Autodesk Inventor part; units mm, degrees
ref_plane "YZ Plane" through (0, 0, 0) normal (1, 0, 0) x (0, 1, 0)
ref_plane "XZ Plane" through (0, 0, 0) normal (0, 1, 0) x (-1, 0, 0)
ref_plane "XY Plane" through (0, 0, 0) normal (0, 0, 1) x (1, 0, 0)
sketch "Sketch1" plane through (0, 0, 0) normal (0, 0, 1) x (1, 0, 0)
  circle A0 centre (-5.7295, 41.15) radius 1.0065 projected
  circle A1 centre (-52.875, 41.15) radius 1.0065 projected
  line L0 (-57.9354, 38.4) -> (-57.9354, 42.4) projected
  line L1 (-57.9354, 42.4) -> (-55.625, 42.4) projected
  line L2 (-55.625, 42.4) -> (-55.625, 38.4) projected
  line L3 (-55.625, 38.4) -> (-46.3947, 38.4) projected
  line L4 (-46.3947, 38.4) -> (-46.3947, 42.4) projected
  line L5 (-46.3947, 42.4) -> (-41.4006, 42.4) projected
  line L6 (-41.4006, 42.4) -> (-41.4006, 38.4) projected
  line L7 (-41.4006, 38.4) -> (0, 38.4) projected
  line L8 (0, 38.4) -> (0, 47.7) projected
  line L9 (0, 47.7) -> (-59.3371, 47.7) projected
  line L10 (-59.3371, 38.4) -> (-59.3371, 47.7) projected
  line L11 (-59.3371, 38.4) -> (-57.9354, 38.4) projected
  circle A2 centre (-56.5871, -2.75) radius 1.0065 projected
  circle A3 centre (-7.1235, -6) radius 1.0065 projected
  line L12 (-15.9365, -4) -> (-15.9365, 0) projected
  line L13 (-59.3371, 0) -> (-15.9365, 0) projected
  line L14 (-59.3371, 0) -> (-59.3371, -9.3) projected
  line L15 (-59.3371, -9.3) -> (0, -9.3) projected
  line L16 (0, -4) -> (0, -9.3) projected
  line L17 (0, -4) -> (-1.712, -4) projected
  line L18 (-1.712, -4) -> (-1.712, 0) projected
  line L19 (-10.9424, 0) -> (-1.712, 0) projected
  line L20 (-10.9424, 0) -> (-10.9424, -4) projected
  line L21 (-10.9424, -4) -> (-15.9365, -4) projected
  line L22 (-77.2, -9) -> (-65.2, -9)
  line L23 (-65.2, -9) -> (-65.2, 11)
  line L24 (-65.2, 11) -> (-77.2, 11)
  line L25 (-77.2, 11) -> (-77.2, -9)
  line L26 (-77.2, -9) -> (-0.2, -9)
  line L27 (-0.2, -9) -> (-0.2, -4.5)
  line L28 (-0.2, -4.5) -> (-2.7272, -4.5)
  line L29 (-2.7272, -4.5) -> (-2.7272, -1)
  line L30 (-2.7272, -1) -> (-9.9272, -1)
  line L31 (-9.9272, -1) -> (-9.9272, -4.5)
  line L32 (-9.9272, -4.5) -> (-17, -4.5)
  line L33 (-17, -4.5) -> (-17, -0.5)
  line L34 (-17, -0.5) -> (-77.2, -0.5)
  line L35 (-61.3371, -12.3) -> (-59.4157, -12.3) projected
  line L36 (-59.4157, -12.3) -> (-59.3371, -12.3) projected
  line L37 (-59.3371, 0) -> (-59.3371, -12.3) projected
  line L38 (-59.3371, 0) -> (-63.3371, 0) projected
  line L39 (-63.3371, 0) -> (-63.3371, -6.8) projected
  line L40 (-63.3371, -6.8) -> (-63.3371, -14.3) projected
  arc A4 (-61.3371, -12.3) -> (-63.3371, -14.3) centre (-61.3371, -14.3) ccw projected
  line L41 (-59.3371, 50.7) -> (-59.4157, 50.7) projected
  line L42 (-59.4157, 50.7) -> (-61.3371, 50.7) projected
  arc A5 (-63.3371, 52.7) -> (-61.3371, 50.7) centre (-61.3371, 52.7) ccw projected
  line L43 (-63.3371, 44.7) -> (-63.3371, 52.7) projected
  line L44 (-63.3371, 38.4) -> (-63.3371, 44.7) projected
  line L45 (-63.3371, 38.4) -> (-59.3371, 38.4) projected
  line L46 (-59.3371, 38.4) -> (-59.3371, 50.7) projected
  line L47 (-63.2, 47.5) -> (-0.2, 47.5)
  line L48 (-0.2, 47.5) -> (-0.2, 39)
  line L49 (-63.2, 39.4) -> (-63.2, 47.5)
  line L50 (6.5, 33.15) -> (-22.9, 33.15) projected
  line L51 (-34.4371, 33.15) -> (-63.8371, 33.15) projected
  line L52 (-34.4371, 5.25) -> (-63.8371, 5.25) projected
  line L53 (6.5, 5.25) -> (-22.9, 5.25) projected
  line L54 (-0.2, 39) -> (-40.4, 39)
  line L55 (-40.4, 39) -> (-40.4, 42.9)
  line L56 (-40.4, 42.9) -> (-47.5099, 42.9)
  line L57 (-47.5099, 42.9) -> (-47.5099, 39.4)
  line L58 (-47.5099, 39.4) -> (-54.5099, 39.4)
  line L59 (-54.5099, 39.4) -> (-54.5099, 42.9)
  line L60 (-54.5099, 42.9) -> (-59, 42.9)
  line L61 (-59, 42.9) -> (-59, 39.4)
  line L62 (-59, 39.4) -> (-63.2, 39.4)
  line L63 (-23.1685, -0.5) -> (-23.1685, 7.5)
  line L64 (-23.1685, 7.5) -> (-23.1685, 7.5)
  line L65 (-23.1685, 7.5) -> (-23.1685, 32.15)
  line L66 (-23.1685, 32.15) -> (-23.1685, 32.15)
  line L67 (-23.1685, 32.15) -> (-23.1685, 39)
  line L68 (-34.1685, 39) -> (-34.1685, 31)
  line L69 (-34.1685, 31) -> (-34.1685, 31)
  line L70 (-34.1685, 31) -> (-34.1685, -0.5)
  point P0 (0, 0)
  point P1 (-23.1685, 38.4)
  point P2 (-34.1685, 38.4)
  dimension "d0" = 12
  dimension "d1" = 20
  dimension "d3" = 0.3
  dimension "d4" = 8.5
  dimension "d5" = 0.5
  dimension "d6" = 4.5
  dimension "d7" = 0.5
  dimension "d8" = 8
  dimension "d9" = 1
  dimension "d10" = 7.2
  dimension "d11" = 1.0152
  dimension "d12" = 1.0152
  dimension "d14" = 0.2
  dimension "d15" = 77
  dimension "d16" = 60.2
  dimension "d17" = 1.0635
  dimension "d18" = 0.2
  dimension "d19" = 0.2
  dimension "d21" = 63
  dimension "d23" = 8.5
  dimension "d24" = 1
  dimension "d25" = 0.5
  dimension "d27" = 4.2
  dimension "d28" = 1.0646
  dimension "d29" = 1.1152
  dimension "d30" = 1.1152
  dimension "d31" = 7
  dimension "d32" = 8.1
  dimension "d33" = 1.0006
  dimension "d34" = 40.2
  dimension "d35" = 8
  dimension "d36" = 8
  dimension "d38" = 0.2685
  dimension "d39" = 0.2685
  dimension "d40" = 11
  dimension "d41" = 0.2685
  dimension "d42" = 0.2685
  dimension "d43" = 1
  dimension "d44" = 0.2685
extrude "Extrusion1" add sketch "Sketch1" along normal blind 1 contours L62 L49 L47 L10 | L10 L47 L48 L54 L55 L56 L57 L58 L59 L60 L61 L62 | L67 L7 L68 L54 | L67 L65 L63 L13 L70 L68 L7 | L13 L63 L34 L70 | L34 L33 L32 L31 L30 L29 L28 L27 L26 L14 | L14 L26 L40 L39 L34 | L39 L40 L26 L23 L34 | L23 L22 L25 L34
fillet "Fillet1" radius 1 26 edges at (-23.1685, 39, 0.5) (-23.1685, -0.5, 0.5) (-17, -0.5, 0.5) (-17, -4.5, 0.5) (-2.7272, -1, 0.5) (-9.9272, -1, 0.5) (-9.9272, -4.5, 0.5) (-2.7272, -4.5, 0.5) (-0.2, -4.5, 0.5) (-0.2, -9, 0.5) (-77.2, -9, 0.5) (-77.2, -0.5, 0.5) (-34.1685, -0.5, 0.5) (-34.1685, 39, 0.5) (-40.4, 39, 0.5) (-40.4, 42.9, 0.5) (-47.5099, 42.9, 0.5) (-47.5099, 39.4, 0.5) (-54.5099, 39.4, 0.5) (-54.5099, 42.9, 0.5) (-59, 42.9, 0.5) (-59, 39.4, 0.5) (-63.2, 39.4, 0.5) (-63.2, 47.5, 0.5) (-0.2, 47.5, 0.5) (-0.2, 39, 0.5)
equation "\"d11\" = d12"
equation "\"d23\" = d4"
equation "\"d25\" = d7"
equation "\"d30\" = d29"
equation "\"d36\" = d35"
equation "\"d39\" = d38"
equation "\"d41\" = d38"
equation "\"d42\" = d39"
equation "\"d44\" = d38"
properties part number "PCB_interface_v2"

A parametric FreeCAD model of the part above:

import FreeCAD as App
import Part
import Sketcher
from FreeCAD import Vector
Q = App.Units.Quantity


def edges_at(feature, points):
    """Names of the edges that pass closest to the given points."""
    edges = feature.Shape.Edges
    near = lambda p: min(range(len(edges)), key=lambda i: edges[i].distToShape(Part.Vertex(*p))[0])
    return sorted({f"Edge{near(p) + 1}" for p in points})

doc = App.newDocument("Part")
params = doc.addObject("Spreadsheet::Sheet", "Params")
for row, (alias, value) in enumerate([
    ("sketch1_width", "7 mm"),
    ("sketch1_width2", "77 mm"),
    ("sketch1_width3", "63 mm"),
    ("sketch1_width4", "4.2 mm"),
    ("sketch1_width5", "7.2 mm"),
    ("pad1_length", "1 mm"),
    ("fillet_radius", "1 mm"),
], start=1):
    params.set(f"A{row}", alias)
    params.set(f"B{row}", "=" + value)
    params.setAlias(f"B{row}", alias)

body = doc.addObject("PartDesign::Body", "Body")

# Sketch on XY plane
sketch1 = body.newObject("Sketcher::SketchObject", "Sketch")
sketch1.AttachmentSupport = (doc.getObject("XY_Plane"), [""])
sketch1.MapMode = "FlatFace"
sketch1.addGeometry(Part.LineSegment(Vector(-63.2, 39.4, 0), Vector(-59, 39.4, 0)), False)
sketch1.addGeometry(Part.LineSegment(Vector(-59, 39.4, 0), Vector(-59, 42.9, 0)), False)
sketch1.addGeometry(Part.LineSegment(Vector(-59, 42.9, 0), Vector(-54.5, 42.9, 0)), False)
sketch1.addGeometry(Part.LineSegment(Vector(-54.5, 42.9, 0), Vector(-54.5, 39.4, 0)), False)
sketch1.addGeometry(Part.LineSegment(Vector(-54.5, 39.4, 0), Vector(-47.5, 39.4, 0)), False)
sketch1.addGeometry(Part.LineSegment(Vector(-47.5, 39.4, 0), Vector(-47.5, 42.9, 0)), False)
sketch1.addGeometry(Part.LineSegment(Vector(-47.5, 42.9, 0), Vector(-40.4, 42.9, 0)), False)
sketch1.addGeometry(Part.LineSegment(Vector(-40.4, 42.9, 0), Vector(-40.4, 39, 0)), False)
sketch1.addGeometry(Part.LineSegment(Vector(-40.4, 39, 0), Vector(-34.2, 39, 0)), False)
sketch1.addGeometry(Part.LineSegment(Vector(-34.2, 39, 0), Vector(-34.2, -0.5, 0)), False)
sketch1.addGeometry(Part.LineSegment(Vector(-34.2, -0.5, 0), Vector(-77.2, -0.5, 0)), False)
sketch1.addGeometry(Part.LineSegment(Vector(-77.2, -0.5, 0), Vector(-77.2, -9, 0)), False)
sketch1.addGeometry(Part.LineSegment(Vector(-77.2, -9, 0), Vector(-0.2, -9, 0)), False)
sketch1.addGeometry(Part.LineSegment(Vector(-0.2, -9, 0), Vector(-0.2, -4.5, 0)), False)
sketch1.addGeometry(Part.LineSegment(Vector(-0.2, -4.5, 0), Vector(-2.7, -4.5, 0)), False)
sketch1.addGeometry(Part.LineSegment(Vector(-2.7, -4.5, 0), Vector(-2.7, -1, 0)), False)
sketch1.addGeometry(Part.LineSegment(Vector(-2.7, -1, 0), Vector(-9.9, -1, 0)), False)
sketch1.addGeometry(Part.LineSegment(Vector(-9.9, -1, 0), Vector(-9.9, -4.5, 0)), False)
sketch1.addGeometry(Part.LineSegment(Vector(-9.9, -4.5, 0), Vector(-17, -4.5, 0)), False)
sketch1.addGeometry(Part.LineSegment(Vector(-17, -4.5, 0), Vector(-17, -0.5, 0)), False)
sketch1.addGeometry(Part.LineSegment(Vector(-17, -0.5, 0), Vector(-23.2, -0.5, 0)), False)
sketch1.addGeometry(Part.LineSegment(Vector(-23.2, -0.5, 0), Vector(-23.2, 39, 0)), False)
sketch1.addGeometry(Part.LineSegment(Vector(-23.2, 39, 0), Vector(-0.2, 39, 0)), False)
sketch1.addGeometry(Part.LineSegment(Vector(-0.2, 39, 0), Vector(-0.2, 47.5, 0)), False)
sketch1.addGeometry(Part.LineSegment(Vector(-0.2, 47.5, 0), Vector(-63.2, 47.5, 0)), False)
sketch1.addGeometry(Part.LineSegment(Vector(-63.2, 47.5, 0), Vector(-63.2, 39.4, 0)), False)
sketch1.addGeometry(Part.Circle(Vector(-5.7, 41.1, 0), Vector(0, 0, 1), 1), False)
sketch1.addGeometry(Part.Circle(Vector(-52.9, 41.1, 0), Vector(0, 0, 1), 1), False)
sketch1.addGeometry(Part.Circle(Vector(-7.1, -6, 0), Vector(0, 0, 1), 1), False)
sketch1.addGeometry(Part.Circle(Vector(-56.6, -2.8, 0), Vector(0, 0, 1), 1), False)
sketch1.addConstraint(Sketcher.Constraint("Coincident", 0, 2, 1, 1))
sketch1.addConstraint(Sketcher.Constraint("Coincident", 1, 2, 2, 1))
sketch1.addConstraint(Sketcher.Constraint("Coincident", 2, 2, 3, 1))
sketch1.addConstraint(Sketcher.Constraint("Coincident", 3, 2, 4, 1))
sketch1.addConstraint(Sketcher.Constraint("Coincident", 4, 2, 5, 1))
sketch1.addConstraint(Sketcher.Constraint("Coincident", 5, 2, 6, 1))
sketch1.addConstraint(Sketcher.Constraint("Coincident", 6, 2, 7, 1))
sketch1.addConstraint(Sketcher.Constraint("Coincident", 7, 2, 8, 1))
sketch1.addConstraint(Sketcher.Constraint("Coincident", 8, 2, 9, 1))
sketch1.addConstraint(Sketcher.Constraint("Coincident", 9, 2, 10, 1))
sketch1.addConstraint(Sketcher.Constraint("Coincident", 10, 2, 11, 1))
sketch1.addConstraint(Sketcher.Constraint("Coincident", 11, 2, 12, 1))
sketch1.addConstraint(Sketcher.Constraint("Coincident", 12, 2, 13, 1))
sketch1.addConstraint(Sketcher.Constraint("Coincident", 13, 2, 14, 1))
sketch1.addConstraint(Sketcher.Constraint("Coincident", 14, 2, 15, 1))
sketch1.addConstraint(Sketcher.Constraint("Coincident", 15, 2, 16, 1))
sketch1.addConstraint(Sketcher.Constraint("Coincident", 16, 2, 17, 1))
sketch1.addConstraint(Sketcher.Constraint("Coincident", 17, 2, 18, 1))
sketch1.addConstraint(Sketcher.Constraint("Coincident", 18, 2, 19, 1))
sketch1.addConstraint(Sketcher.Constraint("Coincident", 19, 2, 20, 1))
sketch1.addConstraint(Sketcher.Constraint("Coincident", 20, 2, 21, 1))
sketch1.addConstraint(Sketcher.Constraint("Coincident", 21, 2, 22, 1))
sketch1.addConstraint(Sketcher.Constraint("Coincident", 22, 2, 23, 1))
sketch1.addConstraint(Sketcher.Constraint("Coincident", 23, 2, 24, 1))
sketch1.addConstraint(Sketcher.Constraint("Coincident", 24, 2, 25, 1))
sketch1.addConstraint(Sketcher.Constraint("Coincident", 25, 2, 0, 1))
sketch1.addConstraint(Sketcher.Constraint("Horizontal", 0))
sketch1.addConstraint(Sketcher.Constraint("Vertical", 1))
sketch1.addConstraint(Sketcher.Constraint("Horizontal", 2))
sketch1.addConstraint(Sketcher.Constraint("Vertical", 3))
sketch1.addConstraint(Sketcher.Constraint("Horizontal", 4))
sketch1.addConstraint(Sketcher.Constraint("Vertical", 5))
sketch1.addConstraint(Sketcher.Constraint("Horizontal", 6))
sketch1.addConstraint(Sketcher.Constraint("Vertical", 7))
sketch1.addConstraint(Sketcher.Constraint("Horizontal", 8))
sketch1.addConstraint(Sketcher.Constraint("Vertical", 9))
sketch1.addConstraint(Sketcher.Constraint("Horizontal", 10))
sketch1.addConstraint(Sketcher.Constraint("Vertical", 11))
sketch1.addConstraint(Sketcher.Constraint("Horizontal", 12))
sketch1.addConstraint(Sketcher.Constraint("Vertical", 13))
sketch1.addConstraint(Sketcher.Constraint("Horizontal", 14))
sketch1.addConstraint(Sketcher.Constraint("Vertical", 15))
sketch1.addConstraint(Sketcher.Constraint("Horizontal", 16))
sketch1.addConstraint(Sketcher.Constraint("Vertical", 17))
sketch1.addConstraint(Sketcher.Constraint("Horizontal", 18))
sketch1.addConstraint(Sketcher.Constraint("Vertical", 19))
sketch1.addConstraint(Sketcher.Constraint("Horizontal", 20))
sketch1.addConstraint(Sketcher.Constraint("Vertical", 21))
sketch1.addConstraint(Sketcher.Constraint("Horizontal", 22))
sketch1.addConstraint(Sketcher.Constraint("Vertical", 23))
sketch1.addConstraint(Sketcher.Constraint("Horizontal", 24))
sketch1.addConstraint(Sketcher.Constraint("Vertical", 25))
sketch1.addConstraint(Sketcher.Constraint("Equal", 26, 27))
sketch1.addConstraint(Sketcher.Constraint("Equal", 27, 28))
sketch1.addConstraint(Sketcher.Constraint("Equal", 28, 29))
sketch1.addConstraint(Sketcher.Constraint("Horizontal", 26, 3, 27, 3))
sketch1.addConstraint(Sketcher.Constraint("Horizontal", 0, 2, 3, 2))
sketch1.addConstraint(Sketcher.Constraint("Horizontal", 2, 2, 5, 2))
sketch1.addConstraint(Sketcher.Constraint("Horizontal", 14, 2, 17, 2))
sketch1.addConstraint(Sketcher.Constraint("Horizontal", 10, 2, 19, 2))
sketch1.addConstraint(Sketcher.Constraint("Horizontal", 8, 2, 21, 2))
sketch1.addConstraint(Sketcher.Constraint("Vertical", 13, 2, 22, 2))
sketch1.addConstraint(Sketcher.Constraint("Equal", 5, 15))
sketch1.addConstraint(Sketcher.Constraint("Equal", 11, 23))
sketch1.addConstraint(Sketcher.Constraint("DistanceX", 4, 1, 4, 2, Q("7 mm")))
sketch1.addConstraint(Sketcher.Constraint("DistanceX", 12, 1, 12, 2, Q("77 mm")))
sketch1.addConstraint(Sketcher.Constraint("DistanceX", 24, 2, 24, 1, Q("63 mm")))
sketch1.addConstraint(Sketcher.Constraint("DistanceX", 0, 1, 0, 2, Q("4.2 mm")))
sketch1.addConstraint(Sketcher.Constraint("DistanceX", 16, 2, 16, 1, Q("7.2 mm")))
sketch1.addConstraint(Sketcher.Constraint("DistanceY", 11, 2, 11, 1, Q("8.5 mm")))
sketch1.addConstraint(Sketcher.Constraint("DistanceY", 13, 1, 13, 2, Q("4.5 mm")))
sketch1.addConstraint(Sketcher.Constraint("DistanceY", 25, 2, 25, 1, Q("8.1 mm")))
sketch1.addConstraint(Sketcher.Constraint("DistanceY", 15, 2, -1, 1, Q("1 mm")))
sketch1.addConstraint(Sketcher.Constraint("DistanceY", 12, 2, 15, 2, Q("8 mm")))
sketch1.addConstraint(Sketcher.Constraint("DistanceX", 9, 2, 20, 2, Q("11 mm")))
sketch1.addConstraint(Sketcher.Constraint("DistanceX", 12, 2, -1, 1, Q("0.2 mm")))
sketch1.addConstraint(Sketcher.Constraint("DistanceX", 7, 2, 22, 2, Q("40.2 mm")))
sketch1.addConstraint(Sketcher.Constraint("Diameter", 26, Q("2.013 mm")))
sketch1.addConstraint(Sketcher.Constraint("DistanceY", 9, 2, 9, 1, Q("39.5 mm")))
sketch1.addConstraint(Sketcher.Constraint("DistanceY", 28, 3, -1, 1, Q("6 mm")))
sketch1.addConstraint(Sketcher.Constraint("DistanceX", 18, 2, -1, 1, Q("17 mm")))
sketch1.addConstraint(Sketcher.Constraint("DistanceX", 2, 1, 2, 2, Q("4.49 mm")))
sketch1.addConstraint(Sketcher.Constraint("DistanceY", 29, 3, 27, 3, Q("43.9 mm")))
sketch1.addConstraint(Sketcher.Constraint("DistanceY", -1, 1, 26, 3, Q("41.15 mm")))
sketch1.addConstraint(Sketcher.Constraint("DistanceX", 8, 1, 8, 2, Q("6.2315 mm")))
sketch1.addConstraint(Sketcher.Constraint("DistanceX", 14, 2, 14, 1, Q("2.5272 mm")))
sketch1.addConstraint(Sketcher.Constraint("DistanceX", 27, 3, -1, 1, Q("52.875 mm")))
sketch1.addConstraint(Sketcher.Constraint("DistanceX", 29, 3, -1, 1, Q("56.587 mm")))
sketch1.addConstraint(Sketcher.Constraint("DistanceX", 28, 3, 26, 3, Q("1.394 mm")))
sketch1.addConstraint(Sketcher.Constraint("DistanceX", 9, 2, 28, 3, Q("27.045 mm")))
sketch1.setExpression("Constraints[64]", "Params.sketch1_width")
sketch1.setExpression("Constraints[65]", "Params.sketch1_width2")
sketch1.setExpression("Constraints[66]", "Params.sketch1_width3")
sketch1.setExpression("Constraints[67]", "Params.sketch1_width4")
sketch1.setExpression("Constraints[68]", "Params.sketch1_width5")
pad1 = body.newObject("PartDesign::Pad", "Pad")
pad1.Profile = sketch1
pad1.setExpression("Length", "Params.pad1_length")
doc.recompute()

fillet = body.newObject("PartDesign::Fillet", "Fillet")
fillet.Base = (pad1, edges_at(pad1, [
    (-23.169, 39, 0.5),
    (-23.169, -0.5, 0.5),
    (-17, -0.5, 0.5),
    (-17, -4.5, 0.5),
    (-2.727, -1, 0.5),
    (-9.927, -1, 0.5),
    (-9.927, -4.5, 0.5),
    (-2.727, -4.5, 0.5),
    (-0.2, -4.5, 0.5),
    (-0.2, -9, 0.5),
    (-77.2, -9, 0.5),
    (-77.2, -0.5, 0.5),
    (-34.169, -0.5, 0.5),
    (-34.169, 39, 0.5),
    (-40.4, 39, 0.5),
    (-40.4, 42.9, 0.5),
    (-47.51, 42.9, 0.5),
    (-47.51, 39.4, 0.5),
    (-54.51, 39.4, 0.5),
    (-54.51, 42.9, 0.5),
    (-59, 42.9, 0.5),
    (-59, 39.4, 0.5),
    (-63.2, 39.4, 0.5),
    (-63.2, 47.5, 0.5),
    (-0.2, 47.5, 0.5),
    (-0.2, 39, 0.5),
]))
fillet.setExpression("Radius", "Params.fillet_radius")

doc.recompute()
